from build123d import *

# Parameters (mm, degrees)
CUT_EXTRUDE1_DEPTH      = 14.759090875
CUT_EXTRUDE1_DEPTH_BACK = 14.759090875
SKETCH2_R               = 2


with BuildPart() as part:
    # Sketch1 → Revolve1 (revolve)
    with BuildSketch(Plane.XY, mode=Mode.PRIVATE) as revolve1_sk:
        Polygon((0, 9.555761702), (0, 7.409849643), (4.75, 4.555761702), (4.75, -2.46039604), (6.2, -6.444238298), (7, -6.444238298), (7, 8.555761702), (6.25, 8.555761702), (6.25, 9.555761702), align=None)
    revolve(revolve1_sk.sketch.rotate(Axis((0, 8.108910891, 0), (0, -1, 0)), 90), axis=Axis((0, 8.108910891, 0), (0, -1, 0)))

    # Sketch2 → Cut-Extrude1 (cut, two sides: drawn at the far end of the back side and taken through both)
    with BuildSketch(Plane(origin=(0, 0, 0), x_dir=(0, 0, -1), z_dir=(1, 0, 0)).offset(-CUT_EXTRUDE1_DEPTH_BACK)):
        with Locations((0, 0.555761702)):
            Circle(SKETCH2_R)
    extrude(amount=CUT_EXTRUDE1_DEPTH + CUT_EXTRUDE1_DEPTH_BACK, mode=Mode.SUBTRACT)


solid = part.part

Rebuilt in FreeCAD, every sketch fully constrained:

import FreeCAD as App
import Part
import Sketcher

V = App.Vector
Q = App.Units.Quantity

doc = App.newDocument("Part")
body = doc.addObject("PartDesign::Body", "Body")

# Sketch on XY plane
sketch1 = doc.addObject("Sketcher::SketchObject", "Sketch")
body.addObject(sketch1)
sketch1.AttachmentSupport = (doc.XY_Plane, [""])
sketch1.MapMode = "FlatFace"
sketch1.addGeometry(Part.LineSegment(V(0, 9.6, 0), V(0, 7.4, 0)), False)
sketch1.addGeometry(Part.LineSegment(V(0, 7.4, 0), V(4.8, 4.6, 0)), False)
sketch1.addGeometry(Part.LineSegment(V(4.8, 4.6, 0), V(4.8, -2.5, 0)), False)
sketch1.addGeometry(Part.LineSegment(V(4.8, -2.5, 0), V(6.2, -6.4, 0)), False)
sketch1.addGeometry(Part.LineSegment(V(6.2, -6.4, 0), V(7, -6.4, 0)), False)
sketch1.addGeometry(Part.LineSegment(V(7, -6.4, 0), V(7, 8.6, 0)), False)
sketch1.addGeometry(Part.LineSegment(V(7, 8.6, 0), V(6.2, 8.6, 0)), False)
sketch1.addGeometry(Part.LineSegment(V(6.2, 8.6, 0), V(6.2, 9.6, 0)), False)
sketch1.addGeometry(Part.LineSegment(V(6.2, 9.6, 0), V(0, 9.6, 0)), False)
sketch1.addConstraint(Sketcher.Constraint("Coincident", 0, 2, 1, 1))
sketch1.addConstraint(Sketcher.Constraint("Coincident", 1, 2, 2, 1))
sketch1.addConstraint(Sketcher.Constraint("Coincident", 2, 2, 3, 1))
sketch1.addConstraint(Sketcher.Constraint("Coincident", 3, 2, 4, 1))
sketch1.addConstraint(Sketcher.Constraint("Coincident", 4, 2, 5, 1))
sketch1.addConstraint(Sketcher.Constraint("Coincident", 5, 2, 6, 1))
sketch1.addConstraint(Sketcher.Constraint("Coincident", 6, 2, 7, 1))
sketch1.addConstraint(Sketcher.Constraint("Coincident", 7, 2, 8, 1))
sketch1.addConstraint(Sketcher.Constraint("Coincident", 8, 2, 0, 1))
sketch1.addConstraint(Sketcher.Constraint("Vertical", 0))
sketch1.addConstraint(Sketcher.Constraint("Vertical", 2))
sketch1.addConstraint(Sketcher.Constraint("Horizontal", 4))
sketch1.addConstraint(Sketcher.Constraint("Vertical", 5))
sketch1.addConstraint(Sketcher.Constraint("Horizontal", 6))
sketch1.addConstraint(Sketcher.Constraint("Vertical", 7))
sketch1.addConstraint(Sketcher.Constraint("Horizontal", 8))
sketch1.addConstraint(Sketcher.Constraint("PointOnObject", 0, 2, -2))
sketch1.addConstraint(Sketcher.Constraint("DistanceY", 5, 1, 5, 2, Q("15 mm")))
sketch1.addConstraint(Sketcher.Constraint("DistanceY", 7, 1, 7, 2, Q("1 mm")))
sketch1.addConstraint(Sketcher.Constraint("Angle", 1, Q("-31 deg")))
sketch1.addConstraint(Sketcher.Constraint("Angle", 3, Q("-70 deg")))
sketch1.addConstraint(Sketcher.Constraint("DistanceX", 4, 1, 4, 2, Q("0.8 mm")))
sketch1.addConstraint(Sketcher.Constraint("DistanceX", -1, 1, 4, 2, Q("7 mm")))
sketch1.addConstraint(Sketcher.Constraint("DistanceY", 3, 2, 1, 2, Q("11 mm")))
sketch1.addConstraint(Sketcher.Constraint("DistanceX", 6, 2, 6, 1, Q("0.75 mm")))
sketch1.addConstraint(Sketcher.Constraint("DistanceX", 1, 2, 6, 2, Q("1.5 mm")))
sketch1.addConstraint(Sketcher.Constraint("DistanceY", -1, 1, 0, 2, Q("7.40985 mm")))
revolution = doc.addObject("PartDesign::Revolution", "Revolution")
body.addObject(revolution)
revolution.Profile = sketch1
revolution.ReferenceAxis = (sketch1, ["V_Axis"])
revolution.Angle = 360

# Sketch on YZ plane
sketch2 = doc.addObject("Sketcher::SketchObject", "Sketch001")
body.addObject(sketch2)
sketch2.AttachmentSupport = (doc.YZ_Plane, [""])
sketch2.MapMode = "FlatFace"
sketch2.addGeometry(Part.Circle(V(0.6, 0, 0), V(0, 0, 1), 2), False)
sketch2.addConstraint(Sketcher.Constraint("PointOnObject", 0, 3, -1))
sketch2.addConstraint(Sketcher.Constraint("Diameter", 0, Q("4 mm")))
sketch2.addConstraint(Sketcher.Constraint("DistanceX", -1, 1, 0, 3, Q("0.555762 mm")))
pocket1 = doc.addObject("PartDesign::Pocket", "Pocket")
body.addObject(pocket1)
pocket1.Profile = sketch2
pocket1.Type = "ThroughAll"
pocket1.Midplane = True

doc.recompute()
